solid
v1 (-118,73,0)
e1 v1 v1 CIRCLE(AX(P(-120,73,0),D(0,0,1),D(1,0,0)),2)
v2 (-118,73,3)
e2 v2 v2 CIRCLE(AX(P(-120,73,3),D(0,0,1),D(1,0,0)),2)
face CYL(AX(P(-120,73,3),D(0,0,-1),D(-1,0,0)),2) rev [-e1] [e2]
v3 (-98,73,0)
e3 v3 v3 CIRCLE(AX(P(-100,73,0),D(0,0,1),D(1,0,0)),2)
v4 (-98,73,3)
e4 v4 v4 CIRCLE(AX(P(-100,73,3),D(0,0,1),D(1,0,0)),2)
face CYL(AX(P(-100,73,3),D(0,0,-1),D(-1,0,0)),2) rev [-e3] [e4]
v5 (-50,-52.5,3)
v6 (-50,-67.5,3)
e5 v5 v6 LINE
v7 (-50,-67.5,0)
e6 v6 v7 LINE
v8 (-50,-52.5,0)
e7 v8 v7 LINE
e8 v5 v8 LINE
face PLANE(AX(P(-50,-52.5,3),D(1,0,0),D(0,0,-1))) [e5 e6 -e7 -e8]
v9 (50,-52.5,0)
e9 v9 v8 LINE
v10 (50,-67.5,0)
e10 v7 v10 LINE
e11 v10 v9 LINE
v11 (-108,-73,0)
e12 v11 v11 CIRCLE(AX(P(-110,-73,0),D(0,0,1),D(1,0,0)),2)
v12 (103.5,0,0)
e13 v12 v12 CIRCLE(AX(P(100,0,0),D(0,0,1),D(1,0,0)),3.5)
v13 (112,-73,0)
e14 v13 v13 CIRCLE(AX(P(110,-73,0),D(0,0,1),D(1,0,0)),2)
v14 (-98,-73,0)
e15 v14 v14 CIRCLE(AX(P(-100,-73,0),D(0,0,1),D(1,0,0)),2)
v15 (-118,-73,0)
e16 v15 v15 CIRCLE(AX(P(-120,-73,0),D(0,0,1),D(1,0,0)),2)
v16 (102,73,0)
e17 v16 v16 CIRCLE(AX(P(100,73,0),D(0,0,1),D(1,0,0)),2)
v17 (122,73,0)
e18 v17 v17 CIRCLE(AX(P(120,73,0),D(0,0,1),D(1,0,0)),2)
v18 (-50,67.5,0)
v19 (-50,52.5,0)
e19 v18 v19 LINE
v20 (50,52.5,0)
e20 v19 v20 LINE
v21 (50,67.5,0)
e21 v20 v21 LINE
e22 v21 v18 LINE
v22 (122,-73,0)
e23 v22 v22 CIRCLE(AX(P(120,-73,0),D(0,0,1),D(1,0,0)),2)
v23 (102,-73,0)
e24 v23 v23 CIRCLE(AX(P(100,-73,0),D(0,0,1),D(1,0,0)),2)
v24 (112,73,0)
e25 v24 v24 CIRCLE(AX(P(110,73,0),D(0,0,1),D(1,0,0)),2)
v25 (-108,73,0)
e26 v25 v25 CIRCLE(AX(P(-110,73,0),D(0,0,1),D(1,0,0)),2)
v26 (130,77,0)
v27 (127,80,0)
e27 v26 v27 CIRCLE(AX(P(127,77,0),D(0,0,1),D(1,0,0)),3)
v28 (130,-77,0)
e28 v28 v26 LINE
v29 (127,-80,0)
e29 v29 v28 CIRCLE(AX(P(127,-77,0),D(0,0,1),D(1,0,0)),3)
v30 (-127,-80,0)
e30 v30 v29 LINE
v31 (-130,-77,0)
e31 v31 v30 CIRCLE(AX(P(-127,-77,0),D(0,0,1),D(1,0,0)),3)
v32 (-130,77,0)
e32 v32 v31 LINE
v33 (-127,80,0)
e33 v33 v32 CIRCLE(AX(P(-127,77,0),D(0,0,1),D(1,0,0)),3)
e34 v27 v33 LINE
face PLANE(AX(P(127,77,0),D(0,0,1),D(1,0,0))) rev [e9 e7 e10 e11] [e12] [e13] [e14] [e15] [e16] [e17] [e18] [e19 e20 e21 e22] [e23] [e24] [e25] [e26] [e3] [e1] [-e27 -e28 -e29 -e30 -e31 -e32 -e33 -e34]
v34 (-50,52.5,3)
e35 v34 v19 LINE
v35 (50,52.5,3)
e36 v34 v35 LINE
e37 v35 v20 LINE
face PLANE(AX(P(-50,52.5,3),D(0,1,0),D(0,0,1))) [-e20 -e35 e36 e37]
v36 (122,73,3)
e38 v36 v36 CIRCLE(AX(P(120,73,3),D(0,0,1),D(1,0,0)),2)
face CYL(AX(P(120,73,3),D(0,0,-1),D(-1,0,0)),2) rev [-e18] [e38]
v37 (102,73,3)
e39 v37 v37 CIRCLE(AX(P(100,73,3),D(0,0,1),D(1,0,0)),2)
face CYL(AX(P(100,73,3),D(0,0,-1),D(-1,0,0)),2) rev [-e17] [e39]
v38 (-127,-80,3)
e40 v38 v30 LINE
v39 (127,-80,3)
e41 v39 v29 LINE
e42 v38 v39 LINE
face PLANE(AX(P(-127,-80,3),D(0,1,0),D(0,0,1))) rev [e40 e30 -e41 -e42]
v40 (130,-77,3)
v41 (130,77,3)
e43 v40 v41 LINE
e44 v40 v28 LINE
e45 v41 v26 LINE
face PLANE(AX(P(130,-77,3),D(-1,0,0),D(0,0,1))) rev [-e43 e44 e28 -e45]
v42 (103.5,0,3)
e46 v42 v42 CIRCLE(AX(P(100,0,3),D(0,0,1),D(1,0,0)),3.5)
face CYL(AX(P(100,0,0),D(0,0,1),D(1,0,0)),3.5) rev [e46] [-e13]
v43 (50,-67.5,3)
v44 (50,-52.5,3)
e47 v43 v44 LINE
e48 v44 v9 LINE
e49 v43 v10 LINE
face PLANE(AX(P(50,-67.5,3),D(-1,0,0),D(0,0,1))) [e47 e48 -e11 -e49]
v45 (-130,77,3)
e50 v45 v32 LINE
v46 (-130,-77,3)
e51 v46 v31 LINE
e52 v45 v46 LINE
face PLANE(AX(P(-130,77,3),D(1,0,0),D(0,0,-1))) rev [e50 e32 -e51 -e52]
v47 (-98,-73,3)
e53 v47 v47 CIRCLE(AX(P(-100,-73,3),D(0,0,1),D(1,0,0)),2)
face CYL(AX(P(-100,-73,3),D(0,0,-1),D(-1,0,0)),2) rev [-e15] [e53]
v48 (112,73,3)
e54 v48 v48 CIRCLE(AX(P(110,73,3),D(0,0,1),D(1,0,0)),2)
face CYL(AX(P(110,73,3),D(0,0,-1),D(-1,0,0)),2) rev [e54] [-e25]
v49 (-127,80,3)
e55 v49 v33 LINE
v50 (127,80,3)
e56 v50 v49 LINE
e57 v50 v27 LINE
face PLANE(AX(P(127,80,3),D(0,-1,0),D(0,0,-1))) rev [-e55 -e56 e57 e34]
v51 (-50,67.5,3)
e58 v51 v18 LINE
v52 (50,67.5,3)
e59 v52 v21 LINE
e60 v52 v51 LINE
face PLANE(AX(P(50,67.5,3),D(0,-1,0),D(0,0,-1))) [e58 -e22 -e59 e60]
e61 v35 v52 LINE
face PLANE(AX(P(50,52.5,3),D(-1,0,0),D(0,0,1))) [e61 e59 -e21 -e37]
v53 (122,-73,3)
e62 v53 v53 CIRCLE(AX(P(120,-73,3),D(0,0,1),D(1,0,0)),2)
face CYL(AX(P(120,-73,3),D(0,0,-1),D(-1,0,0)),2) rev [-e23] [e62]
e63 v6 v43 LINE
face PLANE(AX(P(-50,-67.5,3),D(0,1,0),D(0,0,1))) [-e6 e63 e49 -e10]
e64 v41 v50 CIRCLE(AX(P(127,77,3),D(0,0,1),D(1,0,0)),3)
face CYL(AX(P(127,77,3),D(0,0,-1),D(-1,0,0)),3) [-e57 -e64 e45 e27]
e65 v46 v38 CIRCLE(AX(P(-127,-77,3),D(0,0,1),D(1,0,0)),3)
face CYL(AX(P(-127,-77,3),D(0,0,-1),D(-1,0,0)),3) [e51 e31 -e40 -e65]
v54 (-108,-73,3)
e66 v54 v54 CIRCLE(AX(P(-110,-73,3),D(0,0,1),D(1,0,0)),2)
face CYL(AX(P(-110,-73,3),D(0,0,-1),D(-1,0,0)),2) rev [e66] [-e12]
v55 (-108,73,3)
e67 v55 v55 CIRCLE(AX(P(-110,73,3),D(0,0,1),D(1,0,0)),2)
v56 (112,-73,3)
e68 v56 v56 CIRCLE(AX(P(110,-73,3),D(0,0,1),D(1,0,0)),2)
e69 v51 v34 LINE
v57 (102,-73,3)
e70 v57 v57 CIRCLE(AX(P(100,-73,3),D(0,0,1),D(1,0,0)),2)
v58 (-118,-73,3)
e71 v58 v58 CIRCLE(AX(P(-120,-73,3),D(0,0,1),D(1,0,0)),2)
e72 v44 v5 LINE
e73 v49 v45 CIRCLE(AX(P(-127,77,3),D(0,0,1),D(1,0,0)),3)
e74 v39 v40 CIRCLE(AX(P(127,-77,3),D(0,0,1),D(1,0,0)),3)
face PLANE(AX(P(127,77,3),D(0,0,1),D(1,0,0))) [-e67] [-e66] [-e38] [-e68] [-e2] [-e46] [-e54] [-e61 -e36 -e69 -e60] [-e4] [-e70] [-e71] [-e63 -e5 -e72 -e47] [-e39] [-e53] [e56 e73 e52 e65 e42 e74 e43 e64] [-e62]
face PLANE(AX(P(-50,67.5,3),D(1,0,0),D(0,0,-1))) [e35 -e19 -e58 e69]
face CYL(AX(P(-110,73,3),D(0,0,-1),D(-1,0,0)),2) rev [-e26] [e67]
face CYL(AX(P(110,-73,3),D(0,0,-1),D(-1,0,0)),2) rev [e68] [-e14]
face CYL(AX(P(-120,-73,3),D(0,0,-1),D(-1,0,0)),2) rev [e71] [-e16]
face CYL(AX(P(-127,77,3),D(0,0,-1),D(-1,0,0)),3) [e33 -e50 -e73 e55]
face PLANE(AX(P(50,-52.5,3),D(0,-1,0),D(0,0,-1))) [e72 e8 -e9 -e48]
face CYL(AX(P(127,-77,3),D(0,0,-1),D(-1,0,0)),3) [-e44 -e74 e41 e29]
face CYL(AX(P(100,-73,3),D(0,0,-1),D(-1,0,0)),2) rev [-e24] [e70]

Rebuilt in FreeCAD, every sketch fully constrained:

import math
import FreeCAD as App
import Part
import Sketcher


def add_polygon(sketch, points):
    """Adds a closed chain of lines whose ends are joined by coincident constraints."""
    first, n = sketch.GeometryCount, len(points)
    for a, b in zip(points, points[1:] + points[:1]):
        sketch.addGeometry(Part.LineSegment(App.Vector(*a, 0), App.Vector(*b, 0)), False)
    for i in range(n):
        sketch.addConstraint(Sketcher.Constraint("Coincident", first + i, 2, first + (i + 1) % n, 1))

doc = App.newDocument("Part")
body = doc.addObject("PartDesign::Body", "Body")

sketch1 = body.newObject("Sketcher::SketchObject", "Sketch")
sketch1.AttachmentSupport = (doc.getObject("XY_Plane"), [""])
sketch1.MapMode = "FlatFace"
sketch1.addGeometry(Part.LineSegment(App.Vector(130, -77, 0), App.Vector(130, 77, 0)), False)
sketch1.addGeometry(Part.ArcOfCircle(Part.Circle(App.Vector(127, 77, 0), App.Vector(0, 0, 1), 3), math.radians(0), math.radians(90)), False)
sketch1.addGeometry(Part.LineSegment(App.Vector(127, 80, 0), App.Vector(-127, 80, 0)), False)
sketch1.addGeometry(Part.ArcOfCircle(Part.Circle(App.Vector(-127, 77, 0), App.Vector(0, 0, 1), 3), math.radians(90), math.radians(180)), False)
sketch1.addGeometry(Part.LineSegment(App.Vector(-130, 77, 0), App.Vector(-130, -77, 0)), False)
sketch1.addGeometry(Part.ArcOfCircle(Part.Circle(App.Vector(-127, -77, 0), App.Vector(0, 0, 1), 3), math.radians(180), math.radians(270)), False)
sketch1.addGeometry(Part.LineSegment(App.Vector(-127, -80, 0), App.Vector(127, -80, 0)), False)
sketch1.addGeometry(Part.ArcOfCircle(Part.Circle(App.Vector(127, -77, 0), App.Vector(0, 0, 1), 3), math.radians(-90), math.radians(0)), False)
sketch1.addGeometry(Part.Circle(App.Vector(-120, -73, 0), App.Vector(0, 0, 1), 2), False)
sketch1.addGeometry(Part.Circle(App.Vector(-110, -73, 0), App.Vector(0, 0, 1), 2), False)
sketch1.addGeometry(Part.Circle(App.Vector(-100, -73, 0), App.Vector(0, 0, 1), 2), False)
add_polygon(sketch1, [(50, -67.5), (-50, -67.5), (-50, -52.5), (50, -52.5)])
sketch1.addGeometry(Part.Circle(App.Vector(0, -40.4, 0), App.Vector(0, 0, 1), 1.5), False)
sketch1.addGeometry(Part.Circle(App.Vector(100, -73, 0), App.Vector(0, 0, 1), 2), False)
sketch1.addGeometry(Part.Circle(App.Vector(110, -73, 0), App.Vector(0, 0, 1), 2), False)
sketch1.addGeometry(Part.Circle(App.Vector(120, -73, 0), App.Vector(0, 0, 1), 2), False)
add_polygon(sketch1, [(-70, -20), (-110, -20), (-110, 20), (-70, 20)])
sketch1.addGeometry(Part.Circle(App.Vector(-40.4, 0, 0), App.Vector(0, 0, 1), 1.5), False)
sketch1.addGeometry(Part.LineSegment(App.Vector(28.543233, -23.543233, 0), App.Vector(28.543233, -28.543233, 0)), False)
sketch1.addGeometry(Part.LineSegment(App.Vector(28.543233, -28.543233, 0), App.Vector(23.543233, -28.543233, 0)), False)
sketch1.addGeometry(Part.ArcOfCircle(Part.Circle(App.Vector(0, 0, 0), App.Vector(0, 0, 1), 37), math.radians(-39.516737), math.radians(309.516737)), False)
sketch1.addGeometry(Part.Circle(App.Vector(-120, 73, 0), App.Vector(0, 0, 1), 2), False)
sketch1.addGeometry(Part.Circle(App.Vector(-110, 73, 0), App.Vector(0, 0, 1), 2), False)
sketch1.addGeometry(Part.Circle(App.Vector(-100, 73, 0), App.Vector(0, 0, 1), 2), False)
sketch1.addGeometry(Part.Circle(App.Vector(40.4, 0, 0), App.Vector(0, 0, 1), 1.5), False)
add_polygon(sketch1, [(110, -20), (70, -20), (70, 20), (110, 20)])
sketch1.addGeometry(Part.Circle(App.Vector(0, 40.4, 0), App.Vector(0, 0, 1), 1.5), False)
add_polygon(sketch1, [(50, 52.5), (-50, 52.5), (-50, 67.5), (50, 67.5)])
sketch1.addGeometry(Part.Circle(App.Vector(100, 73, 0), App.Vector(0, 0, 1), 2), False)
sketch1.addGeometry(Part.Circle(App.Vector(110, 73, 0), App.Vector(0, 0, 1), 2), False)
sketch1.addGeometry(Part.Circle(App.Vector(120, 73, 0), App.Vector(0, 0, 1), 2), False)
sketch1.addConstraint(Sketcher.Constraint("Tangent", 0, 2, 1, 1))
sketch1.addConstraint(Sketcher.Constraint("Tangent", 1, 2, 2, 1))
sketch1.addConstraint(Sketcher.Constraint("Tangent", 2, 2, 3, 1))
sketch1.addConstraint(Sketcher.Constraint("Tangent", 3, 2, 4, 1))
sketch1.addConstraint(Sketcher.Constraint("Tangent", 4, 2, 5, 1))
sketch1.addConstraint(Sketcher.Constraint("Tangent", 5, 2, 6, 1))
sketch1.addConstraint(Sketcher.Constraint("Tangent", 6, 2, 7, 1))
sketch1.addConstraint(Sketcher.Constraint("Tangent", 7, 2, 0, 1))
sketch1.addConstraint(Sketcher.Constraint("Coincident", 24, 2, 25, 1))
sketch1.addConstraint(Sketcher.Constraint("Coincident", 25, 2, 26, 2))
sketch1.addConstraint(Sketcher.Constraint("Coincident", 26, 1, 24, 1))
sketch1.addConstraint(Sketcher.Constraint("Vertical", 0))
sketch1.addConstraint(Sketcher.Constraint("Horizontal", 2))
sketch1.addConstraint(Sketcher.Constraint("Vertical", 4))
sketch1.addConstraint(Sketcher.Constraint("Horizontal", 6))
sketch1.addConstraint(Sketcher.Constraint("Horizontal", 11))
sketch1.addConstraint(Sketcher.Constraint("Vertical", 12))
sketch1.addConstraint(Sketcher.Constraint("Horizontal", 13))
sketch1.addConstraint(Sketcher.Constraint("Vertical", 14))
sketch1.addConstraint(Sketcher.Constraint("Horizontal", 19))
sketch1.addConstraint(Sketcher.Constraint("Vertical", 20))
sketch1.addConstraint(Sketcher.Constraint("Horizontal", 21))
sketch1.addConstraint(Sketcher.Constraint("Vertical", 22))
sketch1.addConstraint(Sketcher.Constraint("Vertical", 24))
sketch1.addConstraint(Sketcher.Constraint("Horizontal", 25))
sketch1.addConstraint(Sketcher.Constraint("Horizontal", 31))
sketch1.addConstraint(Sketcher.Constraint("Vertical", 32))
sketch1.addConstraint(Sketcher.Constraint("Horizontal", 33))
sketch1.addConstraint(Sketcher.Constraint("Vertical", 34))
sketch1.addConstraint(Sketcher.Constraint("Horizontal", 36))
sketch1.addConstraint(Sketcher.Constraint("Vertical", 37))
sketch1.addConstraint(Sketcher.Constraint("Horizontal", 38))
sketch1.addConstraint(Sketcher.Constraint("Vertical", 39))
sketch1.addConstraint(Sketcher.Constraint("Coincident", 26, 3, -1, 1))
sketch1.addConstraint(Sketcher.Constraint("Equal", 1, 3))
sketch1.addConstraint(Sketcher.Constraint("Equal", 3, 5))
sketch1.addConstraint(Sketcher.Constraint("Equal", 5, 7))
sketch1.addConstraint(Sketcher.Constraint("Equal", 8, 9))
sketch1.addConstraint(Sketcher.Constraint("Equal", 9, 10))
sketch1.addConstraint(Sketcher.Constraint("Equal", 10, 16))
sketch1.addConstraint(Sketcher.Constraint("Equal", 16, 17))
sketch1.addConstraint(Sketcher.Constraint("Equal", 17, 18))
sketch1.addConstraint(Sketcher.Constraint("Equal", 15, 23))
sketch1.addConstraint(Sketcher.Constraint("Equal", 18, 27))
sketch1.addConstraint(Sketcher.Constraint("Equal", 27, 28))
sketch1.addConstraint(Sketcher.Constraint("Equal", 28, 29))
sketch1.addConstraint(Sketcher.Constraint("Equal", 23, 30))
sketch1.addConstraint(Sketcher.Constraint("Equal", 30, 35))
sketch1.addConstraint(Sketcher.Constraint("Equal", 29, 40))
sketch1.addConstraint(Sketcher.Constraint("Equal", 40, 41))
sketch1.addConstraint(Sketcher.Constraint("Equal", 41, 42))
sketch1.addConstraint(Sketcher.Constraint("Symmetric", 1, 3, 5, 3, -1, 1))
sketch1.addConstraint(Sketcher.Constraint("Symmetric", 18, 3, 27, 3, -1, 1))
sketch1.addConstraint(Sketcher.Constraint("Symmetric", 17, 3, 28, 3, -1, 1))
sketch1.addConstraint(Sketcher.Constraint("Symmetric", 16, 3, 29, 3, -1, 1))
sketch1.addConstraint(Sketcher.Constraint("Symmetric", 23, 3, 30, 3, -1, 1))
sketch1.addConstraint(Sketcher.Constraint("Symmetric", 15, 3, 35, 3, -1, 1))
sketch1.addConstraint(Sketcher.Constraint("Symmetric", 10, 3, 40, 3, -1, 1))
sketch1.addConstraint(Sketcher.Constraint("Symmetric", 9, 3, 41, 3, -1, 1))
sketch1.addConstraint(Sketcher.Constraint("Symmetric", 8, 3, 42, 3, -1, 1))
sketch1.addConstraint(Sketcher.Constraint("Symmetric", 21, 2, 31, 2, -1, 1))
sketch1.addConstraint(Sketcher.Constraint("Symmetric", 19, 2, 33, 2, -1, 1))
sketch1.addConstraint(Sketcher.Constraint("Symmetric", 13, 2, 36, 2, -1, 1))
sketch1.addConstraint(Sketcher.Constraint("Symmetric", 11, 2, 38, 2, -1, 1))
sketch1.addConstraint(Sketcher.Constraint("Symmetric", 10, 3, 16, 3, -2))
sketch1.addConstraint(Sketcher.Constraint("Symmetric", 9, 3, 17, 3, -2))
sketch1.addConstraint(Sketcher.Constraint("Symmetric", 8, 3, 18, 3, -2))
sketch1.addConstraint(Sketcher.Constraint("PointOnObject", 15, 3, -2))
sketch1.addConstraint(Sketcher.Constraint("PointOnObject", 23, 3, -1))
sketch1.addConstraint(Sketcher.Constraint("Horizontal", 8, 3, 9, 3))
sketch1.addConstraint(Sketcher.Constraint("Horizontal", 9, 3, 10, 3))
sketch1.addConstraint(Sketcher.Constraint("Horizontal", 22, 2, 31, 2))
sketch1.addConstraint(Sketcher.Constraint("Vertical", 28, 3, 19, 2))
sketch1.addConstraint(Sketcher.Constraint("Vertical", 12, 2, 36, 2))
sketch1.addConstraint(Sketcher.Constraint("Equal", 33, 20))
sketch1.addConstraint(Sketcher.Constraint("Equal", 25, 24))
sketch1.addConstraint(Sketcher.Constraint("Diameter", 8, 4.0))
sketch1.addConstraint(Sketcher.Constraint("Diameter", 15, 3.0))
sketch1.addConstraint(Sketcher.Constraint("Radius", 1, 3.0))
sketch1.addConstraint(Sketcher.Constraint("Radius", 26, 37.0))
sketch1.addConstraint(Sketcher.Constraint("DistanceX", 2, 2, 2, 1, 254.0))
sketch1.addConstraint(Sketcher.Constraint("DistanceX", 11, 2, 11, 1, 100.0))
sketch1.addConstraint(Sketcher.Constraint("DistanceX", 19, 2, 19, 1, 40.0))
sketch1.addConstraint(Sketcher.Constraint("DistanceX", 25, 2, 25, 1, 5.0))
sketch1.addConstraint(Sketcher.Constraint("DistanceY", 0, 1, 0, 2, 154.0))
sketch1.addConstraint(Sketcher.Constraint("DistanceY", 12, 1, 12, 2, 15.0))
sketch1.addConstraint(Sketcher.Constraint("DistanceX", 8, 3, -1, 1, 120.0))
sketch1.addConstraint(Sketcher.Constraint("DistanceY", 8, 3, -1, 1, 73.0))
sketch1.addConstraint(Sketcher.Constraint("DistanceX", 9, 3, -1, 1, 110.0))
sketch1.addConstraint(Sketcher.Constraint("DistanceX", 10, 3, -1, 1, 100.0))
sketch1.addConstraint(Sketcher.Constraint("DistanceY", 15, 3, -1, 1, 40.4))
sketch1.addConstraint(Sketcher.Constraint("DistanceX", 23, 3, -1, 1, 40.4))
sketch1.addConstraint(Sketcher.Constraint("DistanceY", 11, 2, -1, 1, 67.5))
pad1 = body.newObject("PartDesign::Pad", "Pad")
pad1.Profile = sketch1
pad1.Length = 3

sketch2 = body.newObject("Sketcher::SketchObject", "Sketch001")
sketch2.AttachmentSupport = (doc.getObject("XY_Plane"), [""])
sketch2.MapMode = "FlatFace"
sketch2.AttachmentOffset = App.Placement(App.Vector(0, 0, 3), App.Rotation())
add_polygon(sketch2, [(-48.459905, 44.11331), (-48.459905, -44.11331), (48.459905, -44.11331), (48.459905, 44.11331)])
sketch2.addConstraint(Sketcher.Constraint("Vertical", 0))
sketch2.addConstraint(Sketcher.Constraint("Horizontal", 1))
sketch2.addConstraint(Sketcher.Constraint("Vertical", 2))
sketch2.addConstraint(Sketcher.Constraint("Horizontal", 3))
sketch2.addConstraint(Sketcher.Constraint("Symmetric", 0, 2, 2, 2, -1, 1))
sketch2.addConstraint(Sketcher.Constraint("DistanceX", 1, 1, 1, 2, 96.91981))
sketch2.addConstraint(Sketcher.Constraint("DistanceY", 0, 2, 0, 1, 88.226621))
pad2 = body.newObject("PartDesign::Pad", "Pad001")
pad2.Profile = sketch2
pad2.Length = 3
pad2.Reversed = True

sketch3 = body.newObject("Sketcher::SketchObject", "Sketch002")
sketch3.AttachmentSupport = (doc.getObject("XY_Plane"), [""])
sketch3.MapMode = "FlatFace"
sketch3.AttachmentOffset = App.Placement(App.Vector(0, 0, 3), App.Rotation())
add_polygon(sketch3, [(61.222246, 29.131431), (61.222246, -32.275776), (116.340764, -32.275776), (116.340764, 29.131431)])
sketch3.addConstraint(Sketcher.Constraint("Vertical", 0))
sketch3.addConstraint(Sketcher.Constraint("Horizontal", 1))
sketch3.addConstraint(Sketcher.Constraint("Vertical", 2))
sketch3.addConstraint(Sketcher.Constraint("Horizontal", 3))
sketch3.addConstraint(Sketcher.Constraint("DistanceX", 1, 1, 1, 2, 55.118518))
sketch3.addConstraint(Sketcher.Constraint("DistanceY", 0, 2, 0, 1, 61.407208))
sketch3.addConstraint(Sketcher.Constraint("DistanceY", -1, 1, 2, 2, 29.131431))
sketch3.addConstraint(Sketcher.Constraint("DistanceX", -1, 1, 0, 2, 61.222246))
pad3 = body.newObject("PartDesign::Pad", "Pad002")
pad3.Profile = sketch3
pad3.Length = 3
pad3.Reversed = True

sketch4 = body.newObject("Sketcher::SketchObject", "Sketch003")
sketch4.AttachmentSupport = (doc.getObject("XY_Plane"), [""])
sketch4.MapMode = "FlatFace"
sketch4.AttachmentOffset = App.Placement(App.Vector(0, 0, 3), App.Rotation())
sketch4.addGeometry(Part.Circle(App.Vector(100, 0, 0), App.Vector(0, 0, 1), 3.5), False)
sketch4.addConstraint(Sketcher.Constraint("PointOnObject", 0, 3, -1))
sketch4.addConstraint(Sketcher.Constraint("Diameter", 0, 7.0))
sketch4.addConstraint(Sketcher.Constraint("DistanceX", -1, 1, 0, 3, 100.0))
pocket1 = body.newObject("PartDesign::Pocket", "Pocket")
pocket1.Profile = sketch4
pocket1.Length = 3

sketch5 = body.newObject("Sketcher::SketchObject", "Sketch004")
sketch5.AttachmentSupport = (doc.getObject("XY_Plane"), [""])
sketch5.MapMode = "FlatFace"
sketch5.AttachmentOffset = App.Placement(App.Vector(0, 0, 3), App.Rotation())
add_polygon(sketch5, [(-115.970841, 29.501354), (-115.970841, -29.501354), (-64.921476, -29.501354), (-64.921476, 29.501354)])
sketch5.addConstraint(Sketcher.Constraint("Vertical", 0))
sketch5.addConstraint(Sketcher.Constraint("Horizontal", 1))
sketch5.addConstraint(Sketcher.Constraint("Vertical", 2))
sketch5.addConstraint(Sketcher.Constraint("Horizontal", 3))
sketch5.addConstraint(Sketcher.Constraint("DistanceY", 0, 2, 0, 1, 59.002709))
sketch5.addConstraint(Sketcher.Constraint("DistanceX", 1, 1, 1, 2, 51.049365))
sketch5.addConstraint(Sketcher.Constraint("DistanceX", 0, 2, -1, 1, 115.970841))
sketch5.addConstraint(Sketcher.Constraint("DistanceY", 0, 2, -1, 1, 29.501354))
pad4 = body.newObject("PartDesign::Pad", "Pad003")
pad4.Profile = sketch5
pad4.Length = 3
pad4.Reversed = True

doc.recompute()
